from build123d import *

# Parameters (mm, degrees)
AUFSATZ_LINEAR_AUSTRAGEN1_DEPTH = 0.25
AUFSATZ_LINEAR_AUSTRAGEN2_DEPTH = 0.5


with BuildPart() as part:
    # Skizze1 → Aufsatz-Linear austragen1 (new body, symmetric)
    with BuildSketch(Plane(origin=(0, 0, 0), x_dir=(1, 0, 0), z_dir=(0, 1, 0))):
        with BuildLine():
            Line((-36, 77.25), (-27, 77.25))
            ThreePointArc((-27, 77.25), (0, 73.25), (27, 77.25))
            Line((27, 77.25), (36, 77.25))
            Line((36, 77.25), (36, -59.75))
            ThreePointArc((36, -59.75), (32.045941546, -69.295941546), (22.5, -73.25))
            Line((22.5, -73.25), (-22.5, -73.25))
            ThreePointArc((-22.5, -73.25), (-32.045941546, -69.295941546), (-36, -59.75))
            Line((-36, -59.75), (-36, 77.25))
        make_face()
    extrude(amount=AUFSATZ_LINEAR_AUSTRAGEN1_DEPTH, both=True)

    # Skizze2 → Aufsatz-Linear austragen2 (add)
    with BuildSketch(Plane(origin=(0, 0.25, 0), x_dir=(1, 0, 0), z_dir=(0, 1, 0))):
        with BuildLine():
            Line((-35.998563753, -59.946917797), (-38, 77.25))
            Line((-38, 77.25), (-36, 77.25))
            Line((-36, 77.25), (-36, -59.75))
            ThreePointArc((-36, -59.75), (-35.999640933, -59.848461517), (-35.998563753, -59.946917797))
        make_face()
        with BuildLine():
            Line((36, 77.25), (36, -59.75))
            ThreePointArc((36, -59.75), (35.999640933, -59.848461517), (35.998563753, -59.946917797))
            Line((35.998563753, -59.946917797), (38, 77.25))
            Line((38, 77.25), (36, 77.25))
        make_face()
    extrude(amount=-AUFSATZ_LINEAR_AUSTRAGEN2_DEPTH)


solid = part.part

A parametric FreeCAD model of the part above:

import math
import FreeCAD as App
import Part
import Sketcher
from FreeCAD import Vector
Q = App.Units.Quantity

doc = App.newDocument("Part")
body = doc.addObject("PartDesign::Body", "Body")

# Sketch on XZ plane
sketch1 = doc.addObject("Sketcher::SketchObject", "Sketch")
body.addObject(sketch1)
sketch1.AttachmentSupport = (doc.XZ_Plane, [""])
sketch1.MapMode = "FlatFace"
sketch1.addGeometry([
    Part.LineSegment(Vector(-27, -77.25, 0), Vector(-36, -77.25, 0)),  # 0
    Part.LineSegment(Vector(-36, -77.25, 0), Vector(-36, 59.75, 0)),  # 1
    Part.ArcOfCircle(Part.Circle(Vector(-22.5, 59.75, 0), Vector(0, 0, 1), 13.5), math.radians(90), math.radians(180)),  # 2
    Part.LineSegment(Vector(-22.5, 73.25, 0), Vector(22.5, 73.25, 0)),  # 3
    Part.ArcOfCircle(Part.Circle(Vector(22.5, 59.75, 0), Vector(0, 0, 1), 13.5), math.radians(0), math.radians(90)),  # 4
    Part.LineSegment(Vector(36, 59.75, 0), Vector(36, -77.25, 0)),  # 5
    Part.LineSegment(Vector(36, -77.25, 0), Vector(27, -77.25, 0)),  # 6
    Part.ArcOfCircle(Part.Circle(Vector(0, -166.375, 0), Vector(0, 0, 1), 93.125), math.radians(73.146062), math.radians(106.853938)),  # 7
], False)
sketch1.addConstraint([
    Sketcher.Constraint("Coincident", 0, 2, 1, 1),
    Sketcher.Constraint("Tangent", 1, 2, 2, 2),
    Sketcher.Constraint("Tangent", 2, 1, 3, 1),
    Sketcher.Constraint("Tangent", 3, 2, 4, 2),
    Sketcher.Constraint("Tangent", 4, 1, 5, 1),
    Sketcher.Constraint("Coincident", 5, 2, 6, 1),
    Sketcher.Constraint("Coincident", 6, 2, 7, 1),
    Sketcher.Constraint("Coincident", 7, 2, 0, 1),
    Sketcher.Constraint("Horizontal", 0),
    Sketcher.Constraint("Vertical", 1),
    Sketcher.Constraint("Horizontal", 3),
    Sketcher.Constraint("Vertical", 5),
    Sketcher.Constraint("Horizontal", 6),
    Sketcher.Constraint("Equal", 2, 4),
    Sketcher.Constraint("Symmetric", 0, 2, 5, 2, -2),
    Sketcher.Constraint("PointOnObject", 7, 3, -2),
    Sketcher.Constraint("Radius", 2, Q("13.5 mm")),
    Sketcher.Constraint("DistanceX", 0, 2, 0, 1, Q("9 mm")),
    Sketcher.Constraint("DistanceX", 3, 1, 3, 2, Q("45 mm")),
    Sketcher.Constraint("DistanceY", 1, 1, 1, 2, Q("137 mm")),
    Sketcher.Constraint("Radius", 7, Q("93.125 mm")),
    Sketcher.Constraint("DistanceY", -1, 1, 2, 3, Q("59.75 mm")),
])
pad1 = doc.addObject("PartDesign::Pad", "Pad")
body.addObject(pad1)
pad1.Profile = sketch1
pad1.Length = 0.5
pad1.Midplane = True

# Sketch on XZ plane
sketch2 = doc.addObject("Sketcher::SketchObject", "Sketch001")
body.addObject(sketch2)
sketch2.AttachmentSupport = (doc.XZ_Plane, [""])
sketch2.MapMode = "FlatFace"
sketch2.AttachmentOffset = App.Placement(Vector(0, 0, -0.25), App.Rotation())
sketch2.addGeometry([
    Part.LineSegment(Vector(-38, -77.25, 0), Vector(-35.998564, 59.946918, 0)),  # 0
    Part.ArcOfCircle(Part.Circle(Vector(-22.499978, 59.75, 0), Vector(0, 0, 1), 13.500022), math.radians(179.164226), math.radians(179.999999)),  # 1
    Part.LineSegment(Vector(-36, 59.75, 0), Vector(-36, -77.25, 0)),  # 2
    Part.LineSegment(Vector(-36, -77.25, 0), Vector(-38, -77.25, 0)),  # 3
    Part.LineSegment(Vector(36, -77.25, 0), Vector(36, 59.75, 0)),  # 4
    Part.ArcOfCircle(Part.Circle(Vector(22.499978, 59.75, 0), Vector(0, 0, 1), 13.500022), math.radians(0.000001), math.radians(0.835774)),  # 5
    Part.LineSegment(Vector(35.998564, 59.946918, 0), Vector(38, -77.25, 0)),  # 6
    Part.LineSegment(Vector(38, -77.25, 0), Vector(36, -77.25, 0)),  # 7
], False)
sketch2.addConstraint([
    Sketcher.Constraint("Tangent", 0, 2, 1, 1),
    Sketcher.Constraint("Tangent", 1, 2, 2, 1),
    Sketcher.Constraint("Coincident", 2, 2, 3, 1),
    Sketcher.Constraint("Coincident", 3, 2, 0, 1),
    Sketcher.Constraint("Tangent", 4, 2, 5, 1),
    Sketcher.Constraint("Tangent", 5, 2, 6, 1),
    Sketcher.Constraint("Coincident", 6, 2, 7, 1),
    Sketcher.Constraint("Coincident", 7, 2, 4, 1),
    Sketcher.Constraint("Vertical", 2),
    Sketcher.Constraint("Horizontal", 3),
    Sketcher.Constraint("Vertical", 4),
    Sketcher.Constraint("Horizontal", 7),
    Sketcher.Constraint("Equal", 1, 5),
    Sketcher.Constraint("Symmetric", 1, 3, 5, 3, -2),
    Sketcher.Constraint("Symmetric", 3, 2, 6, 2, -2),
    Sketcher.Constraint("DistanceX", 3, 2, 3, 1, Q("2 mm")),
    Sketcher.Constraint("DistanceY", 2, 2, 2, 1, Q("137 mm")),
    Sketcher.Constraint("DistanceX", 1, 2, -1, 1, Q("36 mm")),
    Sketcher.Constraint("DistanceY", -1, 1, 1, 3, Q("59.75 mm")),
    Sketcher.Constraint("Radius", 1, Q("13.500022 mm")),
])
pad2 = doc.addObject("PartDesign::Pad", "Pad001")
body.addObject(pad2)
pad2.Profile = sketch2
pad2.Length = 0.5

doc.recompute()
